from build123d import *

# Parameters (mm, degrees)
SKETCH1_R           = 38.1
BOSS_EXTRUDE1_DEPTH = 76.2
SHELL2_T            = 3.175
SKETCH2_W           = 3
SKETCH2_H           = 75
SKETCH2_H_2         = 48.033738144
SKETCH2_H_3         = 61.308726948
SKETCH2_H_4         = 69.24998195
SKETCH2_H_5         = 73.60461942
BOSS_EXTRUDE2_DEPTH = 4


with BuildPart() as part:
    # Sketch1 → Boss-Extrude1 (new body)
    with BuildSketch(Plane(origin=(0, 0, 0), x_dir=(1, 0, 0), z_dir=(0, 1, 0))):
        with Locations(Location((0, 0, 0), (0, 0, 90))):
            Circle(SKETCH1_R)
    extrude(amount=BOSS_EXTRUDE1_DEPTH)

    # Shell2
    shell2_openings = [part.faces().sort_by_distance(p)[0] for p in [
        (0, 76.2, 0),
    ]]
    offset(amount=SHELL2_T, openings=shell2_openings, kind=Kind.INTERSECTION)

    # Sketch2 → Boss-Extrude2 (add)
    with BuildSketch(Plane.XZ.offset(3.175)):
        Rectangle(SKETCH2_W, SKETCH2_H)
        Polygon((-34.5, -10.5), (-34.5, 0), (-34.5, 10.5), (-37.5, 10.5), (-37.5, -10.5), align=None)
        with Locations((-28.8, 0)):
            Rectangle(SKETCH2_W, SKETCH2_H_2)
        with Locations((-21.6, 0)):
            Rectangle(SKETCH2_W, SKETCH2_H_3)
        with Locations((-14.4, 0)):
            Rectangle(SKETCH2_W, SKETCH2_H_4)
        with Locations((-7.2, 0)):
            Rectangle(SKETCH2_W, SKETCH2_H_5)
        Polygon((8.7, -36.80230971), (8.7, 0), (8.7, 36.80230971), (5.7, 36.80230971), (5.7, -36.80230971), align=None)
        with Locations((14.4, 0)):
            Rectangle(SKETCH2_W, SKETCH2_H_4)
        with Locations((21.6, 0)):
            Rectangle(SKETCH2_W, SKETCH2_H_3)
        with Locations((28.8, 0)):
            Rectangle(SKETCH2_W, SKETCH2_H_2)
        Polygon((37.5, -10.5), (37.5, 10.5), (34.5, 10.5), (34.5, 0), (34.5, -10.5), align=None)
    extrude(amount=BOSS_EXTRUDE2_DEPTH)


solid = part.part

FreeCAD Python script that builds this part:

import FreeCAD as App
import Part
import Sketcher
Q = App.Units.Quantity


def faces_at(feature, points):
    """Names of the faces that lie closest to the given points."""
    faces = feature.Shape.Faces
    near = lambda p: min(range(len(faces)), key=lambda i: faces[i].distToShape(Part.Vertex(*p))[0])
    return sorted({f"Face{near(p) + 1}" for p in points})


def add_polygon(sketch, points):
    """Adds a closed chain of lines whose ends are joined by coincident constraints."""
    first, n = sketch.GeometryCount, len(points)
    for a, b in zip(points, points[1:] + points[:1]):
        sketch.addGeometry(Part.LineSegment(App.Vector(*a, 0), App.Vector(*b, 0)), False)
    for i in range(n):
        sketch.addConstraint(Sketcher.Constraint("Coincident", first + i, 2, first + (i + 1) % n, 1))

doc = App.newDocument("Part")
params = doc.addObject("Spreadsheet::Sheet", "Params")
for row, (alias, value) in enumerate([
    ("sketch1_diameter", "76.2 mm"),
    ("pad1_length", "76.2 mm"),
    ("thickness_wall", "3.175 mm"),
    ("sketch2_width", "3 mm"),
    ("sketch2_height", "75 mm"),
    ("sketch2_height2", "21 mm"),
    ("pad2_length", "4 mm"),
], start=1):
    params.set(f"A{row}", alias)
    params.set(f"B{row}", "=" + value)
    params.setAlias(f"B{row}", alias)

body = doc.addObject("PartDesign::Body", "Body")

# Sketch on XZ plane
sketch1 = doc.addObject("Sketcher::SketchObject", "Sketch")
body.addObject(sketch1)
sketch1.AttachmentSupport = (doc.XZ_Plane, [""])
sketch1.MapMode = "FlatFace"
sketch1.addGeometry(Part.Circle(App.Vector(0, 0, 0), App.Vector(0, 0, 1), 38), False)
sketch1.addConstraint([
    Sketcher.Constraint("Coincident", 0, 3, -1, 1),
    Sketcher.Constraint("Diameter", 0, Q("76.2 mm")),
])
sketch1.setExpression("Constraints[1]", "Params.sketch1_diameter")
pad1 = doc.addObject("PartDesign::Pad", "Pad")
body.addObject(pad1)
pad1.Profile = sketch1
pad1.setExpression("Length", "Params.pad1_length")
pad1.Reversed = True
doc.recompute()

thickness = doc.addObject("PartDesign::Thickness", "Thickness")
body.addObject(thickness)
thickness.Base = (pad1, faces_at(pad1, [(0, 76.2, 0)]))
thickness.setExpression("Value", "Params.thickness_wall")
thickness.Reversed = False
thickness.Join = "Intersection"

# Sketch on XZ plane
sketch2 = doc.addObject("Sketcher::SketchObject", "Sketch001")
body.addObject(sketch2)
sketch2.AttachmentSupport = (doc.XZ_Plane, [""])
sketch2.MapMode = "FlatFace"
sketch2.AttachmentOffset = App.Placement(App.Vector(0, 0, 3.175), App.Rotation())
add_polygon(sketch2, [(-1.5, 37.5), (-1.5, -37.5), (1.5, -37.5), (1.5, 37.5)])  # lines 0-3
add_polygon(sketch2, [(-34.5, -10.5), (-34.5, 10.5), (-37.5, 10.5), (-37.5, -10.5)])  # lines 4-7
add_polygon(sketch2, [(-30.3, 24), (-30.3, -24), (-27.3, -24), (-27.3, 24)])  # lines 8-11
add_polygon(sketch2, [(-23.1, 30.7), (-23.1, -30.7), (-20.1, -30.7), (-20.1, 30.7)])  # lines 12-15
add_polygon(sketch2, [(-15.9, 34.6), (-15.9, -34.6), (-12.9, -34.6), (-12.9, 34.6)])  # lines 16-19
add_polygon(sketch2, [(-8.7, 36.8), (-8.7, -36.8), (-5.7, -36.8), (-5.7, 36.8)])  # lines 20-23
add_polygon(sketch2, [(8.7, -36.8), (8.7, 36.8), (5.7, 36.8), (5.7, -36.8)])  # lines 24-27
add_polygon(sketch2, [(12.9, 34.6), (12.9, -34.6), (15.9, -34.6), (15.9, 34.6)])  # lines 28-31
add_polygon(sketch2, [(20.1, 30.7), (20.1, -30.7), (23.1, -30.7), (23.1, 30.7)])  # lines 32-35
add_polygon(sketch2, [(27.3, 24), (27.3, -24), (30.3, -24), (30.3, 24)])  # lines 36-39
add_polygon(sketch2, [(37.5, -10.5), (37.5, 10.5), (34.5, 10.5), (34.5, -10.5)])  # lines 40-43
sketch2.addConstraint([
    Sketcher.Constraint("Vertical", 0),
    Sketcher.Constraint("Horizontal", 1),
    Sketcher.Constraint("Vertical", 2),
    Sketcher.Constraint("Horizontal", 3),
    Sketcher.Constraint("Vertical", 4),
    Sketcher.Constraint("Horizontal", 5),
    Sketcher.Constraint("Vertical", 6),
    Sketcher.Constraint("Horizontal", 7),
    Sketcher.Constraint("Vertical", 8),
    Sketcher.Constraint("Horizontal", 9),
    Sketcher.Constraint("Vertical", 10),
    Sketcher.Constraint("Horizontal", 11),
    Sketcher.Constraint("Vertical", 12),
    Sketcher.Constraint("Horizontal", 13),
    Sketcher.Constraint("Vertical", 14),
    Sketcher.Constraint("Horizontal", 15),
    Sketcher.Constraint("Vertical", 16),
    Sketcher.Constraint("Horizontal", 17),
    Sketcher.Constraint("Vertical", 18),
    Sketcher.Constraint("Horizontal", 19),
    Sketcher.Constraint("Vertical", 20),
    Sketcher.Constraint("Horizontal", 21),
    Sketcher.Constraint("Vertical", 22),
    Sketcher.Constraint("Horizontal", 23),
    Sketcher.Constraint("Vertical", 24),
    Sketcher.Constraint("Horizontal", 25),
    Sketcher.Constraint("Vertical", 26),
    Sketcher.Constraint("Horizontal", 27),
    Sketcher.Constraint("Vertical", 28),
    Sketcher.Constraint("Horizontal", 29),
    Sketcher.Constraint("Vertical", 30),
    Sketcher.Constraint("Horizontal", 31),
    Sketcher.Constraint("Vertical", 32),
    Sketcher.Constraint("Horizontal", 33),
    Sketcher.Constraint("Vertical", 34),
    Sketcher.Constraint("Horizontal", 35),
    Sketcher.Constraint("Vertical", 36),
    Sketcher.Constraint("Horizontal", 37),
    Sketcher.Constraint("Vertical", 38),
    Sketcher.Constraint("Horizontal", 39),
    Sketcher.Constraint("Vertical", 40),
    Sketcher.Constraint("Horizontal", 41),
    Sketcher.Constraint("Vertical", 42),
    Sketcher.Constraint("Horizontal", 43),
    Sketcher.Constraint("Symmetric", 0, 2, 2, 2, -1, 1),
    Sketcher.Constraint("Symmetric", 20, 2, 24, 2, -1, 1),
    Sketcher.Constraint("Symmetric", 22, 2, 26, 2, -1, 1),
    Sketcher.Constraint("Symmetric", 18, 2, 28, 2, -1, 1),
    Sketcher.Constraint("Symmetric", 16, 2, 30, 2, -1, 1),
    Sketcher.Constraint("Symmetric", 14, 2, 32, 2, -1, 1),
    Sketcher.Constraint("Symmetric", 12, 2, 34, 2, -1, 1),
    Sketcher.Constraint("Symmetric", 10, 2, 36, 2, -1, 1),
    Sketcher.Constraint("Symmetric", 8, 2, 38, 2, -1, 1),
    Sketcher.Constraint("Symmetric", 6, 2, 40, 2, -1, 1),
    Sketcher.Constraint("Symmetric", 4, 2, 42, 2, -1, 1),
    Sketcher.Constraint("Horizontal", 23, 2, 24, 2),
    Sketcher.Constraint("Horizontal", 17, 2, 28, 2),
    Sketcher.Constraint("Horizontal", 13, 2, 32, 2),
    Sketcher.Constraint("Horizontal", 9, 2, 36, 2),
    Sketcher.Constraint("Horizontal", 5, 2, 40, 2),
    Sketcher.Constraint("Equal", 3, 5),
    Sketcher.Constraint("Equal", 7, 9),
    Sketcher.Constraint("Equal", 11, 13),
    Sketcher.Constraint("Equal", 15, 17),
    Sketcher.Constraint("Equal", 19, 21),
    Sketcher.Constraint("DistanceX", 1, 1, 1, 2, Q("3 mm")),
    Sketcher.Constraint("DistanceY", 0, 2, 0, 1, Q("75 mm")),
    Sketcher.Constraint("DistanceY", 4, 1, 4, 2, Q("21 mm")),
    Sketcher.Constraint("DistanceX", 4, 2, 3, 2, Q("33 mm")),
    Sketcher.Constraint("DistanceX", 8, 2, -1, 1, Q("30.3 mm")),
    Sketcher.Constraint("DistanceX", 12, 2, -1, 1, Q("23.1 mm")),
    Sketcher.Constraint("DistanceX", 16, 2, -1, 1, Q("15.9 mm")),
    Sketcher.Constraint("DistanceX", 20, 2, -1, 1, Q("8.7 mm")),
    Sketcher.Constraint("DistanceY", 8, 2, 8, 1, Q("48.033738 mm")),
    Sketcher.Constraint("DistanceY", 16, 2, 16, 1, Q("69.249982 mm")),
    Sketcher.Constraint("DistanceY", 20, 2, 20, 1, Q("73.604619 mm")),
    Sketcher.Constraint("DistanceY", 12, 2, 12, 1, Q("61.308727 mm")),
])
sketch2.setExpression("Constraints[109]", "Params.sketch2_width")
sketch2.setExpression("Constraints[110]", "Params.sketch2_height")
sketch2.setExpression("Constraints[111]", "Params.sketch2_height2")
pad2 = doc.addObject("PartDesign::Pad", "Pad001")
body.addObject(pad2)
pad2.Profile = sketch2
pad2.setExpression("Length", "Params.pad2_length")

doc.recompute()
